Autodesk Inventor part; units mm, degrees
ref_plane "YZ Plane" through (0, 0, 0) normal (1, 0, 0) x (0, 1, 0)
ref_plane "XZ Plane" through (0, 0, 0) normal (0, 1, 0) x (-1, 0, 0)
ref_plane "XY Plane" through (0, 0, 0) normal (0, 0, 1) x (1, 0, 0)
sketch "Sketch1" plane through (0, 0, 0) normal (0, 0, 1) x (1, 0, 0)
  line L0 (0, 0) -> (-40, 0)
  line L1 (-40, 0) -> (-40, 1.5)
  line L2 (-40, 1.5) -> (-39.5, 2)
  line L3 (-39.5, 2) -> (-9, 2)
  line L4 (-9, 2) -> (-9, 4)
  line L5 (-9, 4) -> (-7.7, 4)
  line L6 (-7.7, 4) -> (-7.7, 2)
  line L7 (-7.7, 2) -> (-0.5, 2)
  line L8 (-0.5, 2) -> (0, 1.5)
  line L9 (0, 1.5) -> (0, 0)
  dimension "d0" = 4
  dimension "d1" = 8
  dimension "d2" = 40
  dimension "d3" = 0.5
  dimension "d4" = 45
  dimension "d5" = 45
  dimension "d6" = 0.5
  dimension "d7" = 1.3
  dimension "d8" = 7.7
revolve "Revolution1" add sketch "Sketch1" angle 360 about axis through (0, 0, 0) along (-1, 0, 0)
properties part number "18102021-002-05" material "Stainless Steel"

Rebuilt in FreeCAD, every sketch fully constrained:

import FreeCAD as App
import Part
import Sketcher
from FreeCAD import Vector
Q = App.Units.Quantity

doc = App.newDocument("Part")
body = doc.addObject("PartDesign::Body", "Body")

sketch1 = body.newObject("Sketcher::SketchObject", "Sketch")
sketch1.AttachmentSupport = (doc.getObject("XY_Plane"), [""])
sketch1.MapMode = "FlatFace"
sketch1.addGeometry(Part.LineSegment(Vector(-40, 0, 0), Vector(0, 0, 0)), False)
sketch1.addGeometry(Part.LineSegment(Vector(0, 0, 0), Vector(0, 1.5, 0)), False)
sketch1.addGeometry(Part.LineSegment(Vector(0, 1.5, 0), Vector(-0.5, 2, 0)), False)
sketch1.addGeometry(Part.LineSegment(Vector(-0.5, 2, 0), Vector(-7.7, 2, 0)), False)
sketch1.addGeometry(Part.LineSegment(Vector(-7.7, 2, 0), Vector(-7.7, 4, 0)), False)
sketch1.addGeometry(Part.LineSegment(Vector(-7.7, 4, 0), Vector(-9, 4, 0)), False)
sketch1.addGeometry(Part.LineSegment(Vector(-9, 4, 0), Vector(-9, 2, 0)), False)
sketch1.addGeometry(Part.LineSegment(Vector(-9, 2, 0), Vector(-39.5, 2, 0)), False)
sketch1.addGeometry(Part.LineSegment(Vector(-39.5, 2, 0), Vector(-40, 1.5, 0)), False)
sketch1.addGeometry(Part.LineSegment(Vector(-40, 1.5, 0), Vector(-40, 0, 0)), False)
sketch1.addConstraint(Sketcher.Constraint("Coincident", 0, 2, 1, 1))
sketch1.addConstraint(Sketcher.Constraint("Coincident", 1, 2, 2, 1))
sketch1.addConstraint(Sketcher.Constraint("Coincident", 2, 2, 3, 1))
sketch1.addConstraint(Sketcher.Constraint("Coincident", 3, 2, 4, 1))
sketch1.addConstraint(Sketcher.Constraint("Coincident", 4, 2, 5, 1))
sketch1.addConstraint(Sketcher.Constraint("Coincident", 5, 2, 6, 1))
sketch1.addConstraint(Sketcher.Constraint("Coincident", 6, 2, 7, 1))
sketch1.addConstraint(Sketcher.Constraint("Coincident", 7, 2, 8, 1))
sketch1.addConstraint(Sketcher.Constraint("Coincident", 8, 2, 9, 1))
sketch1.addConstraint(Sketcher.Constraint("Coincident", 9, 2, 0, 1))
sketch1.addConstraint(Sketcher.Constraint("Horizontal", 0))
sketch1.addConstraint(Sketcher.Constraint("Vertical", 1))
sketch1.addConstraint(Sketcher.Constraint("Horizontal", 3))
sketch1.addConstraint(Sketcher.Constraint("Vertical", 4))
sketch1.addConstraint(Sketcher.Constraint("Horizontal", 5))
sketch1.addConstraint(Sketcher.Constraint("Vertical", 6))
sketch1.addConstraint(Sketcher.Constraint("Horizontal", 7))
sketch1.addConstraint(Sketcher.Constraint("Vertical", 9))
sketch1.addConstraint(Sketcher.Constraint("Coincident", 0, 2, -1, 1))
sketch1.addConstraint(Sketcher.Constraint("Perpendicular", 2, 8))
sketch1.addConstraint(Sketcher.Constraint("Horizontal", 3, 2, 6, 2))
sketch1.addConstraint(Sketcher.Constraint("Horizontal", 1, 2, 8, 2))
sketch1.addConstraint(Sketcher.Constraint("Equal", 2, 8))
sketch1.addConstraint(Sketcher.Constraint("DistanceX", 0, 1, 0, 2, Q("40 mm")))
sketch1.addConstraint(Sketcher.Constraint("DistanceX", 5, 2, 5, 1, Q("1.3 mm")))
sketch1.addConstraint(Sketcher.Constraint("DistanceY", -1, 1, 4, 2, Q("4 mm")))
sketch1.addConstraint(Sketcher.Constraint("DistanceX", 2, 2, -1, 1, Q("0.5 mm")))
sketch1.addConstraint(Sketcher.Constraint("DistanceX", 3, 2, -1, 1, Q("7.7 mm")))
sketch1.addConstraint(Sketcher.Constraint("DistanceY", 4, 1, 4, 2, Q("2 mm")))
revolution = body.newObject("PartDesign::Revolution", "Revolution")
revolution.Profile = sketch1
revolution.ReferenceAxis = (sketch1, ["H_Axis"])
revolution.Angle = 360

doc.recompute()
